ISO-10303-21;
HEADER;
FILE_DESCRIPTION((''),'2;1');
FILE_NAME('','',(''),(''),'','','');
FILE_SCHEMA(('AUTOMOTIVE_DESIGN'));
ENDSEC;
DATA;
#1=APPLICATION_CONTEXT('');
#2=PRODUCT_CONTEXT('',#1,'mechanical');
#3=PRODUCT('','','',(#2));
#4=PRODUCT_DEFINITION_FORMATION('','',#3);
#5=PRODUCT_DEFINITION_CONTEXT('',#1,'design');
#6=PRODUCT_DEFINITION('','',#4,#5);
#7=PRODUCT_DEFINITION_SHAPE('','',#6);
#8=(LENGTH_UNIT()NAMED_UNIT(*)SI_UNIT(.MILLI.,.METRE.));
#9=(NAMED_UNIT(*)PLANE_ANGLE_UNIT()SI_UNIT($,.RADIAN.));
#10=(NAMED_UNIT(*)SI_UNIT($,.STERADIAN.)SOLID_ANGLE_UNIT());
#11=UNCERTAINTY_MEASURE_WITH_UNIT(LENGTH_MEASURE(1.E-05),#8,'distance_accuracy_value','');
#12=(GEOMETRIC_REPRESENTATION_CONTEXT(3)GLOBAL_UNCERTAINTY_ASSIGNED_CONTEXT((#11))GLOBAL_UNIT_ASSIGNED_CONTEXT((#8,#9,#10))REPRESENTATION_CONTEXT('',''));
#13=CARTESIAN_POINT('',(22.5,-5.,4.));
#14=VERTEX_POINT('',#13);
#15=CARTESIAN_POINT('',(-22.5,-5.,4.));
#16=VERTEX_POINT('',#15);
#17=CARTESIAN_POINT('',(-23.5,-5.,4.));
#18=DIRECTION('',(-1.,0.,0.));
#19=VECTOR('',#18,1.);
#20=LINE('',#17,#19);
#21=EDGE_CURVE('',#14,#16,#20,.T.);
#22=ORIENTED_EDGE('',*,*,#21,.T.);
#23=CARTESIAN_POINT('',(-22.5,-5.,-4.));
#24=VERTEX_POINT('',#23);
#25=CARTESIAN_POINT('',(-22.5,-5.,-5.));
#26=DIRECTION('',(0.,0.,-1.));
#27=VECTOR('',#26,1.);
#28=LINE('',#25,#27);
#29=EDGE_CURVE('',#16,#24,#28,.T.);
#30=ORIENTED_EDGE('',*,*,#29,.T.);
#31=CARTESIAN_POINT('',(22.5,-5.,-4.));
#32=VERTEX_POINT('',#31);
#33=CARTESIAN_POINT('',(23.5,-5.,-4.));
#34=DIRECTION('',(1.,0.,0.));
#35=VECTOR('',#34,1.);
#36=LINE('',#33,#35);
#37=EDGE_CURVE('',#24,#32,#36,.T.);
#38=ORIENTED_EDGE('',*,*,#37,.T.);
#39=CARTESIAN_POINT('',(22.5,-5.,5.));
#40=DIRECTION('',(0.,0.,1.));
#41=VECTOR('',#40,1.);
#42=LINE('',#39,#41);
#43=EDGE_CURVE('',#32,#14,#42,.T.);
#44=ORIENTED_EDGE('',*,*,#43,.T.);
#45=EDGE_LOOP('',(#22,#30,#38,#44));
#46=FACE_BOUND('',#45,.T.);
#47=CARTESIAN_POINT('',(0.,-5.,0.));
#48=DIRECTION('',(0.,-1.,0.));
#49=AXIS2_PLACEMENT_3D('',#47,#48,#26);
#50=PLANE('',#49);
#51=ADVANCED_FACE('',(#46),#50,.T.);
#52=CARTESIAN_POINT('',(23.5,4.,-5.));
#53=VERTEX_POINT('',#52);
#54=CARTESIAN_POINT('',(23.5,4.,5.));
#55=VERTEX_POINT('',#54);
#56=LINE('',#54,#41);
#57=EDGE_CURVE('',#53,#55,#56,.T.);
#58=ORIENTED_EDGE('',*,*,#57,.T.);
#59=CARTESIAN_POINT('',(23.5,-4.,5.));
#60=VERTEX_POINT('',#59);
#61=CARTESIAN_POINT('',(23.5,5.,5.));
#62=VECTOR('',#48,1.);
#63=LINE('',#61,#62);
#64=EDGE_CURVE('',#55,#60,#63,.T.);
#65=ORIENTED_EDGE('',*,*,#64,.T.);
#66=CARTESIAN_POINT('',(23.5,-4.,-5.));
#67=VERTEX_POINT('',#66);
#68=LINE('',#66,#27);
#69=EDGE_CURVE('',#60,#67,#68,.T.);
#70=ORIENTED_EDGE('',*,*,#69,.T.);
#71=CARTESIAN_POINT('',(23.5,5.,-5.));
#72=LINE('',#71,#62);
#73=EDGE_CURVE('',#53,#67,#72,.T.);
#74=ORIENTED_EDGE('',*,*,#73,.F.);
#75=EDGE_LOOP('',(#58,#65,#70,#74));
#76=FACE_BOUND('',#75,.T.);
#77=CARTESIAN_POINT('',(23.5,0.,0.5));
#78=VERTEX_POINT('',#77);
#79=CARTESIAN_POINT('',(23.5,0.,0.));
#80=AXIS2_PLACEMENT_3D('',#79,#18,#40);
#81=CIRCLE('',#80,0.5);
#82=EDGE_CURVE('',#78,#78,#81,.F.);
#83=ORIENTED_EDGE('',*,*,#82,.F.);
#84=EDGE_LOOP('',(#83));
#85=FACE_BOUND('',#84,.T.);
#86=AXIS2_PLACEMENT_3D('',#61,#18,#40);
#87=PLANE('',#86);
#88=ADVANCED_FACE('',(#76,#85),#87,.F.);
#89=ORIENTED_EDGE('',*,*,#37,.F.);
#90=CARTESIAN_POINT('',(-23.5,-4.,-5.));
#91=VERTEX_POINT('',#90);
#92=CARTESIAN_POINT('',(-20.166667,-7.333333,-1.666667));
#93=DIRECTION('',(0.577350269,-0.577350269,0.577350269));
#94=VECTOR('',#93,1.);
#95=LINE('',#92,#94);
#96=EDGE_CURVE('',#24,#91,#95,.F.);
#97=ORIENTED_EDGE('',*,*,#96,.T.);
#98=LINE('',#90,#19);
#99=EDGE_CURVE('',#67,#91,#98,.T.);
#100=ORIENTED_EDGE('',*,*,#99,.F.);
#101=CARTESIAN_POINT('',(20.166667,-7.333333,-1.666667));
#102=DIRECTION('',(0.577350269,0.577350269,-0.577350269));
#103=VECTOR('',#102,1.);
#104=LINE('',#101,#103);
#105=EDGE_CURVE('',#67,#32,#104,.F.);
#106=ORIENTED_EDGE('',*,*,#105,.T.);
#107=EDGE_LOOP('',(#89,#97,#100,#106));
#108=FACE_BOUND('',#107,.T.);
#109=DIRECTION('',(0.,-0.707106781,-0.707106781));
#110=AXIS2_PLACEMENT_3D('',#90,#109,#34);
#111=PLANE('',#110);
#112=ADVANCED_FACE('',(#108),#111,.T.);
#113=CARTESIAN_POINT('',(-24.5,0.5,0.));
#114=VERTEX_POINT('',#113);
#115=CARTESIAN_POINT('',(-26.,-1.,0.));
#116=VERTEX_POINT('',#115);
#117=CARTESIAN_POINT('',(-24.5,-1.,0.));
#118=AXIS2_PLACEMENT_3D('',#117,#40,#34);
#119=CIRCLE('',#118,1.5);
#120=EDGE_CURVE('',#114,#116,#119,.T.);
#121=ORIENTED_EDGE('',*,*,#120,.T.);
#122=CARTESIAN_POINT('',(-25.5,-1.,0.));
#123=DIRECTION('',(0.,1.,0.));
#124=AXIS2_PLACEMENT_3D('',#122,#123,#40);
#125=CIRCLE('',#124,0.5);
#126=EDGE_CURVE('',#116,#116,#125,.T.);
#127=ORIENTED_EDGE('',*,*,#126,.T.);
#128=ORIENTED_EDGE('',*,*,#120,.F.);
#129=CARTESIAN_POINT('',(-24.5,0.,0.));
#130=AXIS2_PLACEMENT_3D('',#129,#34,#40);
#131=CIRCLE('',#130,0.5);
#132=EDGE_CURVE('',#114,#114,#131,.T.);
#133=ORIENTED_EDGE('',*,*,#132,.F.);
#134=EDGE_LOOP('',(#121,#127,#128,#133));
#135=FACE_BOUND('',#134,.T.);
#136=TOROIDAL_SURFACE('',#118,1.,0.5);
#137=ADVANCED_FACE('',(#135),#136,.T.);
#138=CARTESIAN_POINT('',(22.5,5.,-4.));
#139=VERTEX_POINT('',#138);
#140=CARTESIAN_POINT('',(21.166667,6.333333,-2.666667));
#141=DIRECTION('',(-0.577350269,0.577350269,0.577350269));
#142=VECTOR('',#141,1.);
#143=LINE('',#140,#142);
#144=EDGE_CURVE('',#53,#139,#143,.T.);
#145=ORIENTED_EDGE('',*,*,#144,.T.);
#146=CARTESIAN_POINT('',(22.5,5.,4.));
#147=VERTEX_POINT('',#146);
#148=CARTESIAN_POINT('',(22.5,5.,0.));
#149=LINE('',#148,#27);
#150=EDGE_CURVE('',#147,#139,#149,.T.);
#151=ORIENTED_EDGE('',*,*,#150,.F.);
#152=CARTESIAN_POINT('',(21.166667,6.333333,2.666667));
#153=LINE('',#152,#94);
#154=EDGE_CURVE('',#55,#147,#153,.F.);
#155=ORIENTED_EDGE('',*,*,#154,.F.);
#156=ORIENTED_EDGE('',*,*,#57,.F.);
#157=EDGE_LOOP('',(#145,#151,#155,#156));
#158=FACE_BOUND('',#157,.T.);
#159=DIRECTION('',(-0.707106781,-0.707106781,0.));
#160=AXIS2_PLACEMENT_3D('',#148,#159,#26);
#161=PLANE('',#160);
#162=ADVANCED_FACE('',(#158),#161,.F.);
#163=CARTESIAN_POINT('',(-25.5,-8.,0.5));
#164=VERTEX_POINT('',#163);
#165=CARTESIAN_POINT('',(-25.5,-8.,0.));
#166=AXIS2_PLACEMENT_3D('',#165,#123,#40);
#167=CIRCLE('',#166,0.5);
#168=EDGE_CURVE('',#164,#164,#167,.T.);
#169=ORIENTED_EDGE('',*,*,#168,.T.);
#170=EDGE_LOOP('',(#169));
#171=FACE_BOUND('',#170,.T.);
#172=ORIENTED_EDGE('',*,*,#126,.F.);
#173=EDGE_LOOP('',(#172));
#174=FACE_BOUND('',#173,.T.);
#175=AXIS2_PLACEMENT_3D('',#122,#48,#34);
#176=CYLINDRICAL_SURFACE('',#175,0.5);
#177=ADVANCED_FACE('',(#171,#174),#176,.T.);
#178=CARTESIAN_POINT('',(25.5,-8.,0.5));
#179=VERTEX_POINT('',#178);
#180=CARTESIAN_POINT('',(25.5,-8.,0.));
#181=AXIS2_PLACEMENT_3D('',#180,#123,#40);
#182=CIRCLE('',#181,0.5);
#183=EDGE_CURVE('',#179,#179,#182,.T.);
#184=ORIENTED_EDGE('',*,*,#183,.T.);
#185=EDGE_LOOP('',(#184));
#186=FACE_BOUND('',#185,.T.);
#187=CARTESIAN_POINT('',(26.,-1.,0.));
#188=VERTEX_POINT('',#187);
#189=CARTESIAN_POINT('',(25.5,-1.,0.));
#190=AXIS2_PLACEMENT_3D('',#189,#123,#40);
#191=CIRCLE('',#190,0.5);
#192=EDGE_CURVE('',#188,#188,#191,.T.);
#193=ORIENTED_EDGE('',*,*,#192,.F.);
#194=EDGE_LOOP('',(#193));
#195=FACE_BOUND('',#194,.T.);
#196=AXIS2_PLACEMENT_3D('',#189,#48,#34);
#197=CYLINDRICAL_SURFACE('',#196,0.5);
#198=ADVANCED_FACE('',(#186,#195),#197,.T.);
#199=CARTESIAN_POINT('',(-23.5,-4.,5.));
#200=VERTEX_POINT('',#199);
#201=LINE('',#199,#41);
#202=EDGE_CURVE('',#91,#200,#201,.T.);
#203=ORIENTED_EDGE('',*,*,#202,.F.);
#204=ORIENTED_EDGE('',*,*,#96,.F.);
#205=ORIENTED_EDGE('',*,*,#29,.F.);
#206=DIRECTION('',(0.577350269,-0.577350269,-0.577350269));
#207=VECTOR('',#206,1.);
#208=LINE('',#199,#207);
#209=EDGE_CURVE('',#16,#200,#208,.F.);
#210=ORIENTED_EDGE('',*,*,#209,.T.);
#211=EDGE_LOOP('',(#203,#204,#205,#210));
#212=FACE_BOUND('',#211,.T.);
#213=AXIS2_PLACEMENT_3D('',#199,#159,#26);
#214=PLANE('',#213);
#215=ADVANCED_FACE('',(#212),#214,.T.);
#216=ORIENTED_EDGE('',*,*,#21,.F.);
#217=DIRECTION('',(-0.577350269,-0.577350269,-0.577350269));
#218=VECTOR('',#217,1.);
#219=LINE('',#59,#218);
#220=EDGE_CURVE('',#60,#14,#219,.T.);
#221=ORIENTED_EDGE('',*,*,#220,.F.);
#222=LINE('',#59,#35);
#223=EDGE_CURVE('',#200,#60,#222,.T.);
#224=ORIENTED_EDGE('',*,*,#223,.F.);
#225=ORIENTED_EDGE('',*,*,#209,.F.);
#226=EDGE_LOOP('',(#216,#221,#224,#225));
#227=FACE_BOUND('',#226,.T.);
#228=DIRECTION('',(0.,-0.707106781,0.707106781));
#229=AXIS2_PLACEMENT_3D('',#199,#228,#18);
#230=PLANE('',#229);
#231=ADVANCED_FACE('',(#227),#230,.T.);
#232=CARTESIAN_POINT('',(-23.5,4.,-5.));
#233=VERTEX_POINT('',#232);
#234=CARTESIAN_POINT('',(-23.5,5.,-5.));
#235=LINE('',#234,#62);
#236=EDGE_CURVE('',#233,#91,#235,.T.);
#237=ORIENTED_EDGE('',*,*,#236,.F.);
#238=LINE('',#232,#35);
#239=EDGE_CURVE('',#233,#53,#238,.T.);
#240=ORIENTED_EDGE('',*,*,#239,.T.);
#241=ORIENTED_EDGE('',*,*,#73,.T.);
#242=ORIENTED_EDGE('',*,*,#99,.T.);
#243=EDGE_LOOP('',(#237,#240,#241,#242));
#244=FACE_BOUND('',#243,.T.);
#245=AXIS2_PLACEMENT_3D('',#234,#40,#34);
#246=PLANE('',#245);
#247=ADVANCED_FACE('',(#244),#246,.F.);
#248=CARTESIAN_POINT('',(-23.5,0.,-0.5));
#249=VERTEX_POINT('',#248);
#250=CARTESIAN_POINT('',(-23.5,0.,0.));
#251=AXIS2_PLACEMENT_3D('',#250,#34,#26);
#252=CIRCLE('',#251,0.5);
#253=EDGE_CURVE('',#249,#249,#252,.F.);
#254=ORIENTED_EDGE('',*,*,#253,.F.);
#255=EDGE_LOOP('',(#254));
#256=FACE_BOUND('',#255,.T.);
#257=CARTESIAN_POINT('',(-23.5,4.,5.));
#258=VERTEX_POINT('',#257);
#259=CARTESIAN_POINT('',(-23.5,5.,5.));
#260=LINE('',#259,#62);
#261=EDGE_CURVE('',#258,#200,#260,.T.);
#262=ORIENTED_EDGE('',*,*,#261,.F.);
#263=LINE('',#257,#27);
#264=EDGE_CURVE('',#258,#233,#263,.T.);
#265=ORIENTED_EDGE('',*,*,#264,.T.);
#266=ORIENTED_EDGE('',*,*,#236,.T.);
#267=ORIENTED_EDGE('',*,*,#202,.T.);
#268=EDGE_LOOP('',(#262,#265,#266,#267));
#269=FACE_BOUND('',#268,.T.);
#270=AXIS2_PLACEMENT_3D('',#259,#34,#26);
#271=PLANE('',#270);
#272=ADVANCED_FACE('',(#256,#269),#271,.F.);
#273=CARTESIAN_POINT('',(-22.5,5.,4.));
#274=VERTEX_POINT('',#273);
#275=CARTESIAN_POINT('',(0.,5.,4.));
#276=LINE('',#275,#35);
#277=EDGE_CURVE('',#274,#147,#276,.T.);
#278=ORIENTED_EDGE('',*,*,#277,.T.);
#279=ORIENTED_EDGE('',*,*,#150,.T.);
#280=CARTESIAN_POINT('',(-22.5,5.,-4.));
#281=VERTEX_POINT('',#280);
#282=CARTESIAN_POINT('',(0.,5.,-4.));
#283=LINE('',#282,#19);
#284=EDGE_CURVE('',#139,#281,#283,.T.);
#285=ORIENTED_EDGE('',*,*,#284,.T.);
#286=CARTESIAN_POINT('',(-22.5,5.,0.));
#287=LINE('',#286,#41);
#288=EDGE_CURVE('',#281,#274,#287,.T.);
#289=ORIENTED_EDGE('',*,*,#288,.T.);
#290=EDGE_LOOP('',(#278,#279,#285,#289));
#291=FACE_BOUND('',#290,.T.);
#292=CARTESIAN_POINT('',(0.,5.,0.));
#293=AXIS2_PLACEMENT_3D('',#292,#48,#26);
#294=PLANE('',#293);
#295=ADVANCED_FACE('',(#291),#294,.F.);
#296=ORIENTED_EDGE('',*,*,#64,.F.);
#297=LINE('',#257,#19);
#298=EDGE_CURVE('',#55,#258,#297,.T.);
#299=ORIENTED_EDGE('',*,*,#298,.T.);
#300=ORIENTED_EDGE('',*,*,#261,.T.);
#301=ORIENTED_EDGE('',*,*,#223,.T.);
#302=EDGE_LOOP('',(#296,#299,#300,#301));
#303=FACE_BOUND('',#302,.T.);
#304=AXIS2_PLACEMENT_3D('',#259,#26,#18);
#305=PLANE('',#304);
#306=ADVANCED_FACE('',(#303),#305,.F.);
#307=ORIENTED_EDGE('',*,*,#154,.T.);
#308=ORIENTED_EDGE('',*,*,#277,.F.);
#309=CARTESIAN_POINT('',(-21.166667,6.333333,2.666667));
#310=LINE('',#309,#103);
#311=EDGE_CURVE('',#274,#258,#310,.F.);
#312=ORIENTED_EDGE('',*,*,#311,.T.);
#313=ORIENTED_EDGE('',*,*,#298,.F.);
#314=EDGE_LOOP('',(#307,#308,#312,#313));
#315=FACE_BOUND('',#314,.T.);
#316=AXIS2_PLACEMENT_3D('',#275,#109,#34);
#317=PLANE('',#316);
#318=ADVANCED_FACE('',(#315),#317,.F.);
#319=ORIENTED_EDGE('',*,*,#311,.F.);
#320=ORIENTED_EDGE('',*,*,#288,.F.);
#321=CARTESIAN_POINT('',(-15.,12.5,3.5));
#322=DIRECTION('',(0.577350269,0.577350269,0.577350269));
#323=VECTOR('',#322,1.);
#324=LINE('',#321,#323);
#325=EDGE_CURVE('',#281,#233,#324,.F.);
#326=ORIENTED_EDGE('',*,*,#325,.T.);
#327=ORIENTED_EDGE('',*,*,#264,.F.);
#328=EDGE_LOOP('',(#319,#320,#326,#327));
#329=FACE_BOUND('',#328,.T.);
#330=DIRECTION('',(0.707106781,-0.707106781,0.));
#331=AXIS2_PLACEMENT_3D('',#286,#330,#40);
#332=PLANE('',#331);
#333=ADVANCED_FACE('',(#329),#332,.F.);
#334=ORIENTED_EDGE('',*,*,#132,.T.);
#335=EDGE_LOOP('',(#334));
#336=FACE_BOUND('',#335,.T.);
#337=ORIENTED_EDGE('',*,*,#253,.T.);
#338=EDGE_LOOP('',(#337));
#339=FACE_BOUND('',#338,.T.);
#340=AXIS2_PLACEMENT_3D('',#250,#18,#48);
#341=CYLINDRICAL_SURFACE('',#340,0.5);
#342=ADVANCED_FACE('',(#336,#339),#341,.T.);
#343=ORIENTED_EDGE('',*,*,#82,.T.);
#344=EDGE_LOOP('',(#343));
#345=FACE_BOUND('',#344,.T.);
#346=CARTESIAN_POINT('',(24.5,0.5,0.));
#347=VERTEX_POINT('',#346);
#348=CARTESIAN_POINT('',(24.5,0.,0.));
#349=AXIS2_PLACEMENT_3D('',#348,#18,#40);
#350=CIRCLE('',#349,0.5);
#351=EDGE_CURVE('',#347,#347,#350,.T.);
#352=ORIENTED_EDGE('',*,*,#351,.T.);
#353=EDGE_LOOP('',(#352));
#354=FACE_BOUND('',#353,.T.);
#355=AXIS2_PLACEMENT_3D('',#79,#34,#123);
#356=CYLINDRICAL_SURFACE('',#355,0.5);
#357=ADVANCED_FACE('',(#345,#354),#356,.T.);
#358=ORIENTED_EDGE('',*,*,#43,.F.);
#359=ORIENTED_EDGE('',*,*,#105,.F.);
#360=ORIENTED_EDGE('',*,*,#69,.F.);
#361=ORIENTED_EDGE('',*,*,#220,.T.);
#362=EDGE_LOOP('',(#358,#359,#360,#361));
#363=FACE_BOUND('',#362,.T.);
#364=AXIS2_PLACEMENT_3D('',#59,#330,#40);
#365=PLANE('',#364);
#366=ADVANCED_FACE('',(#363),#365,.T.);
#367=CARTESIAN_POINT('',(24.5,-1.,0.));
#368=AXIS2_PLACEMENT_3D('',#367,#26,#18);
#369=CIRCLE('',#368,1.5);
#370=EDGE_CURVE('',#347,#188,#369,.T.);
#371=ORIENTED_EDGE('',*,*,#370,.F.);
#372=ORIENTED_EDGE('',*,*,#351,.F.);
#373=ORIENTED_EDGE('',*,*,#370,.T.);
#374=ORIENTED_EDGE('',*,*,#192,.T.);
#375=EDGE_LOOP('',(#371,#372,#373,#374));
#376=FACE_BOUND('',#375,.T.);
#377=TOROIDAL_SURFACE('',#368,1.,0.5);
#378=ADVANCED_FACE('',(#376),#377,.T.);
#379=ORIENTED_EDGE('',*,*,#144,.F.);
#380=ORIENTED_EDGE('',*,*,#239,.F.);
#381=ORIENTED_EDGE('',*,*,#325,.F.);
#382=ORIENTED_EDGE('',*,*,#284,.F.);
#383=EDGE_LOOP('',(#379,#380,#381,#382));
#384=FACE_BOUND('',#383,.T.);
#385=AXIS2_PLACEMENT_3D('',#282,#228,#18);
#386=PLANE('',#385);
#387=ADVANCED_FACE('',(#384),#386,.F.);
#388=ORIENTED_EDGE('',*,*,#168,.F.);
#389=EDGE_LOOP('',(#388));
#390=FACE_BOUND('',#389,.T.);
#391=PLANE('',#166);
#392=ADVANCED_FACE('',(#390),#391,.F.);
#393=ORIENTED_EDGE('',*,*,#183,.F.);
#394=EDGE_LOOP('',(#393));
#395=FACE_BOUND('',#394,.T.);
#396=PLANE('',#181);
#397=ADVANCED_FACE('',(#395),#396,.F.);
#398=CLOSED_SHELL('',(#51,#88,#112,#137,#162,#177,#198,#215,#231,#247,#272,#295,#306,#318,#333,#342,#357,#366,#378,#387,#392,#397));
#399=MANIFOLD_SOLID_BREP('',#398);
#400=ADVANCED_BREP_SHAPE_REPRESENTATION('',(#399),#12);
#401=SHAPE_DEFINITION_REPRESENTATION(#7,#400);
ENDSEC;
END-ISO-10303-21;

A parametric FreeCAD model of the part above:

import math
import FreeCAD as App
import Part
import Sketcher
Q = App.Units.Quantity


def edges_at(feature, points):
    """Names of the edges that pass closest to the given points."""
    edges = feature.Shape.Edges
    near = lambda p: min(range(len(edges)), key=lambda i: edges[i].distToShape(Part.Vertex(*p))[0])
    return sorted({f"Edge{near(p) + 1}" for p in points})

doc = App.newDocument("Part")
body = doc.addObject("PartDesign::Body", "Body")

# Sketch on XZ plane
sketch1 = body.newObject("Sketcher::SketchObject", "Sketch")
sketch1.AttachmentSupport = (doc.getObject("XZ_Plane"), [""])
sketch1.MapMode = "FlatFace"
sketch1.addGeometry([
    Part.LineSegment(App.Vector(-24, -5, 0), App.Vector(-24, 5, 0)),
    Part.LineSegment(App.Vector(-24, 5, 0), App.Vector(24, 5, 0)),
    Part.LineSegment(App.Vector(24, 5, 0), App.Vector(24, -5, 0)),
    Part.LineSegment(App.Vector(24, -5, 0), App.Vector(-24, -5, 0)),
], False)
sketch1.addConstraint([
    Sketcher.Constraint("Coincident", 0, 2, 1, 1),
    Sketcher.Constraint("Coincident", 1, 2, 2, 1),
    Sketcher.Constraint("Coincident", 2, 2, 3, 1),
    Sketcher.Constraint("Coincident", 3, 2, 0, 1),
    Sketcher.Constraint("Vertical", 0),
    Sketcher.Constraint("Horizontal", 1),
    Sketcher.Constraint("Vertical", 2),
    Sketcher.Constraint("Horizontal", 3),
    Sketcher.Constraint("Symmetric", 0, 2, 2, 2, -1, 1),
    Sketcher.Constraint("DistanceX", 1, 1, 1, 2, Q("47 mm")),
    Sketcher.Constraint("DistanceY", 0, 1, 0, 2, Q("10 mm")),
])
pad1 = body.newObject("PartDesign::Pad", "Pad")
pad1.Profile = sketch1
pad1.Length = 10
pad1.Midplane = True
doc.recompute()

chamfer = body.newObject("PartDesign::Chamfer", "Chamfer")
chamfer.Base = (pad1, edges_at(pad1, [
    (-23.5, 5, 0),
    (0, 5, 5),
    (23.5, 5, 0),
    (0, -5, 5),
    (-23.5, -5, 0),
    (0, -5, -5),
    (23.5, -5, 0),
    (0, 5, -5),
]))
chamfer.Size = 1

# Sketch on YZ plane
sketch2 = body.newObject("Sketcher::SketchObject", "Sketch001")
sketch2.AttachmentSupport = (doc.getObject("YZ_Plane"), [""])
sketch2.MapMode = "FlatFace"
sketch2.AttachmentOffset = App.Placement(App.Vector(0, 0, 23.5), App.Rotation())
sketch2.addGeometry(Part.Circle(App.Vector(0, 0, 0), App.Vector(0, 0, 1), 0.5), False)
sketch2.addConstraint([
    Sketcher.Constraint("Coincident", 0, 3, -1, 1),
    Sketcher.Constraint("Diameter", 0, Q("1 mm")),
])

# Sketch on XY plane
sketch3 = body.newObject("Sketcher::SketchObject", "Sketch002")
sketch3.AttachmentSupport = (doc.getObject("XY_Plane"), [""])
sketch3.MapMode = "FlatFace"
sketch3.addGeometry([
    Part.LineSegment(App.Vector(23.5, 0, 0), App.Vector(24.5, 0, 0)),
    Part.ArcOfCircle(Part.Circle(App.Vector(24.5, -1, 0), App.Vector(0, 0, 1), 1), math.radians(0), math.radians(90)),
    Part.LineSegment(App.Vector(25.5, -1, 0), App.Vector(25.5, -8, 0)),
], False)
sketch3.addConstraint([
    Sketcher.Constraint("Tangent", 0, 2, 1, 2),
    Sketcher.Constraint("Tangent", 1, 1, 2, 1),
    Sketcher.Constraint("Horizontal", 0),
    Sketcher.Constraint("Vertical", 2),
    Sketcher.Constraint("PointOnObject", 0, 1, -1),
    Sketcher.Constraint("Radius", 1, Q("1 mm")),
    Sketcher.Constraint("DistanceX", 0, 1, 0, 2, Q("1 mm")),
    Sketcher.Constraint("DistanceY", 2, 2, 2, 1, Q("7 mm")),
    Sketcher.Constraint("DistanceX", -1, 1, 1, 3, Q("24.5 mm")),
])
doc.recompute()

additivepipe = body.newObject("PartDesign::AdditivePipe", "AdditivePipe")
additivepipe.Profile = sketch2
additivepipe.Spine = (sketch3, ["Edge1", "Edge2", "Edge3"])

# Sketch on YZ plane
sketch4 = body.newObject("Sketcher::SketchObject", "Sketch003")
sketch4.AttachmentSupport = (doc.getObject("YZ_Plane"), [""])
sketch4.MapMode = "FlatFace"
sketch4.AttachmentOffset = App.Placement(App.Vector(0, 0, -23.5), App.Rotation())
sketch4.addGeometry(Part.Circle(App.Vector(0, 0, 0), App.Vector(0, 0, 1), 0.5), False)
sketch4.addConstraint([
    Sketcher.Constraint("Coincident", 0, 3, -1, 1),
    Sketcher.Constraint("Diameter", 0, Q("1 mm")),
])

# Sketch on XY plane
sketch5 = body.newObject("Sketcher::SketchObject", "Sketch004")
sketch5.AttachmentSupport = (doc.getObject("XY_Plane"), [""])
sketch5.MapMode = "FlatFace"
sketch5.addGeometry([
    Part.LineSegment(App.Vector(-23.5, 0, 0), App.Vector(-24.5, 0, 0)),
    Part.ArcOfCircle(Part.Circle(App.Vector(-24.5, -1, 0), App.Vector(0, 0, 1), 1), math.radians(90), math.radians(180)),
    Part.LineSegment(App.Vector(-25.5, -1, 0), App.Vector(-25.5, -8, 0)),
], False)
sketch5.addConstraint([
    Sketcher.Constraint("Tangent", 0, 2, 1, 1),
    Sketcher.Constraint("Tangent", 1, 2, 2, 1),
    Sketcher.Constraint("Horizontal", 0),
    Sketcher.Constraint("Vertical", 2),
    Sketcher.Constraint("PointOnObject", 0, 1, -1),
    Sketcher.Constraint("Radius", 1, Q("1 mm")),
    Sketcher.Constraint("DistanceX", 0, 2, 0, 1, Q("1 mm")),
    Sketcher.Constraint("DistanceY", 2, 2, 2, 1, Q("7 mm")),
    Sketcher.Constraint("DistanceX", 1, 3, -1, 1, Q("24.5 mm")),
])
doc.recompute()

additivepipe2 = body.newObject("PartDesign::AdditivePipe", "AdditivePipe001")
additivepipe2.Profile = sketch4
additivepipe2.Spine = (sketch5, ["Edge1", "Edge2", "Edge3"])

doc.recompute()
